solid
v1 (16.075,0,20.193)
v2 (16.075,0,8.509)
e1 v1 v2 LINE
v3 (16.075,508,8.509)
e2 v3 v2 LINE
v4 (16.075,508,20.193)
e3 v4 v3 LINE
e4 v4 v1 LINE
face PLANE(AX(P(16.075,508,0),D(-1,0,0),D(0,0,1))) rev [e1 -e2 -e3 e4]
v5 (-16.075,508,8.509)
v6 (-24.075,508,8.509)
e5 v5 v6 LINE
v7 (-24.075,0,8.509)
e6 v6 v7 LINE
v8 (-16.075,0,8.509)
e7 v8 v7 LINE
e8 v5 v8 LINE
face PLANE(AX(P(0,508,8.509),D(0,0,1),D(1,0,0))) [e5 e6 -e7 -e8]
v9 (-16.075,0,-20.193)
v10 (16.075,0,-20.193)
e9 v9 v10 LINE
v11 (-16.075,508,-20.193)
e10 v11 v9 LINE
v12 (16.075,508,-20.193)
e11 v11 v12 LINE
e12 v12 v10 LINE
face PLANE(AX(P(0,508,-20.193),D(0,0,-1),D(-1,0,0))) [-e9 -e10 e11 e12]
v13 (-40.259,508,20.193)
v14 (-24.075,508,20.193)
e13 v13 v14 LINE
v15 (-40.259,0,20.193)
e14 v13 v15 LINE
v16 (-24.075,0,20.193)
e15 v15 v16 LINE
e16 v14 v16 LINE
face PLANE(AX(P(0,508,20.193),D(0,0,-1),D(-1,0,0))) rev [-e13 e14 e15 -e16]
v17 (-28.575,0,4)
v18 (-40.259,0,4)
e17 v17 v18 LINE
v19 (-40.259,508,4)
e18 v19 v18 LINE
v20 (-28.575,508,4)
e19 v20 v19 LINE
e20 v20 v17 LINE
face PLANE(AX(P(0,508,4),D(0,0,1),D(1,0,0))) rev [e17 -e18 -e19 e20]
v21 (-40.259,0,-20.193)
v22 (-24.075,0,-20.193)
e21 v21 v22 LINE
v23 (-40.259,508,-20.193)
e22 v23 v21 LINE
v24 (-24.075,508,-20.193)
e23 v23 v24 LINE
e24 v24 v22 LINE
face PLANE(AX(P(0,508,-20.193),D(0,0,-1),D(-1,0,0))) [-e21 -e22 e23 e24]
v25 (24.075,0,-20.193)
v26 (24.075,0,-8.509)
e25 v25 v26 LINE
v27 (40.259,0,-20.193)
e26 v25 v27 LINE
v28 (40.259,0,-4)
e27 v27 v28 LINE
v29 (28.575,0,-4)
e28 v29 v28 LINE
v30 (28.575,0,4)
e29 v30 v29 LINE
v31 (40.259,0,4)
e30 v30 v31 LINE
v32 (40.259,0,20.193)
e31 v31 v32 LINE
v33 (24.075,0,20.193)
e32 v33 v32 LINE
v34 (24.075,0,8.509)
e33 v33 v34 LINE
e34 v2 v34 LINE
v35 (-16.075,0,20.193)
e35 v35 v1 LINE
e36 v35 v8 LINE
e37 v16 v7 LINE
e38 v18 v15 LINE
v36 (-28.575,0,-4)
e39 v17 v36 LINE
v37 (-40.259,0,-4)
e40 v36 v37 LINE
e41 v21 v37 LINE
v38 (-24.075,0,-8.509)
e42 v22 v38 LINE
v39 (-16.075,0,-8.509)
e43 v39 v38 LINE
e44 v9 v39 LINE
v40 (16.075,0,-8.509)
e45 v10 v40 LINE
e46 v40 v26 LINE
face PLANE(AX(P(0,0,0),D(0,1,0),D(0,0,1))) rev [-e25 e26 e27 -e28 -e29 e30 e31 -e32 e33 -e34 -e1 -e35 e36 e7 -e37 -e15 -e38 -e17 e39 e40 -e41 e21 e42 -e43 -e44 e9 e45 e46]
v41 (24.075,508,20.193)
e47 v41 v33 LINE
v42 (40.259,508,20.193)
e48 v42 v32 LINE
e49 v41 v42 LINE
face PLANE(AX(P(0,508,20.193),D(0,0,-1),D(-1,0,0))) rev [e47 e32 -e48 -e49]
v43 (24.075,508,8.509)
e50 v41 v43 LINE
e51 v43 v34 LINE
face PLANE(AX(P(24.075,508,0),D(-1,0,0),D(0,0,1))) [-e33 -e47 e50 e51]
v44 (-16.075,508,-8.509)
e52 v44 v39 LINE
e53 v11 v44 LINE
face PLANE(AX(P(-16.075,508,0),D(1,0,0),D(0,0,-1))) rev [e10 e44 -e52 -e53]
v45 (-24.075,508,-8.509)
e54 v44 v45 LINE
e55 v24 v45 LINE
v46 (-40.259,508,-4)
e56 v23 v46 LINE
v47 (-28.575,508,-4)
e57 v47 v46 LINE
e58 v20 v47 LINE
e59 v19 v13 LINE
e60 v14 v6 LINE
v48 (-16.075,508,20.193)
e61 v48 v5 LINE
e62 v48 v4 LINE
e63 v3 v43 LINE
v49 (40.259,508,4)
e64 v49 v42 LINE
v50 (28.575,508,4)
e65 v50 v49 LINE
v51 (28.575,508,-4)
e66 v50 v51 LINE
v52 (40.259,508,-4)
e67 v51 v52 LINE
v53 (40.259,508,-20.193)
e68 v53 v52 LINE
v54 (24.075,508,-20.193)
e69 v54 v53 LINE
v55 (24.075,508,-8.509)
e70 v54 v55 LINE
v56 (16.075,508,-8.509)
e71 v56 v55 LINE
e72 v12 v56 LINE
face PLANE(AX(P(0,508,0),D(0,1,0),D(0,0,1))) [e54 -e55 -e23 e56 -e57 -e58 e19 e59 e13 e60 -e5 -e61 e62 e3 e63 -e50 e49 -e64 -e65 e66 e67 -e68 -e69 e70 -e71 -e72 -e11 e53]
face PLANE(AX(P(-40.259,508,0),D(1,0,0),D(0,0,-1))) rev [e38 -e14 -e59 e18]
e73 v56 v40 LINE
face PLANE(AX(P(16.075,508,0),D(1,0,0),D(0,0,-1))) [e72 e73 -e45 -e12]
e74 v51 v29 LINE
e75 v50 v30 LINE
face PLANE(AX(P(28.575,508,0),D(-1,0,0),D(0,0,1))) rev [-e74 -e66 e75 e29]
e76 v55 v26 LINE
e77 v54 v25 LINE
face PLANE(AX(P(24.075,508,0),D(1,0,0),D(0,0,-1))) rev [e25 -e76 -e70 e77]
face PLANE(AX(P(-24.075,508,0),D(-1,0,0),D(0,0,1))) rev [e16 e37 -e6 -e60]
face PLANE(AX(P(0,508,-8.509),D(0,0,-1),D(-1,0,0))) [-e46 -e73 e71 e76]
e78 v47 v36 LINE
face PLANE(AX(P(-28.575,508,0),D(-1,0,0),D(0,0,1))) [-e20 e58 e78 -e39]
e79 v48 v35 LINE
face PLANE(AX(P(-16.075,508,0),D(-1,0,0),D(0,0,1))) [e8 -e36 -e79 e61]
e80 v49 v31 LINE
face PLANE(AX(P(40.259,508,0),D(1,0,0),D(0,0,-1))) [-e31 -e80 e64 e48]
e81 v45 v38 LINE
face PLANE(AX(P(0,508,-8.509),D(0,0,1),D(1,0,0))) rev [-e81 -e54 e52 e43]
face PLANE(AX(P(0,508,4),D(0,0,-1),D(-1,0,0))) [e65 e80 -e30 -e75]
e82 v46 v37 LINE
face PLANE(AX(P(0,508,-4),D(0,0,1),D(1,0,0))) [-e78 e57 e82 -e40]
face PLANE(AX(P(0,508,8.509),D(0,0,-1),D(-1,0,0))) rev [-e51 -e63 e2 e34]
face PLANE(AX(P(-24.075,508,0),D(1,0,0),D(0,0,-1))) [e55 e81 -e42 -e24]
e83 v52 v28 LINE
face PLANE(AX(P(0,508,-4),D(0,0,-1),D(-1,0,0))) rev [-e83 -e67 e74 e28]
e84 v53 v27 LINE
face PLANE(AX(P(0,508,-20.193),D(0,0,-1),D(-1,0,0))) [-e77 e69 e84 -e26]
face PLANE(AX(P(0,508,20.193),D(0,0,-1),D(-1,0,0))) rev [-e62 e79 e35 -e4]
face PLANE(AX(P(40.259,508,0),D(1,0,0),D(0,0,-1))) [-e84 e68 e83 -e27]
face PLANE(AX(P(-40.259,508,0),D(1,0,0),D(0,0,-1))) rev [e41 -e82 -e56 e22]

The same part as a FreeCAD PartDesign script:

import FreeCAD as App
import Part
import Sketcher
from FreeCAD import Vector
Q = App.Units.Quantity

doc = App.newDocument("Part")
body = doc.addObject("PartDesign::Body", "Body")

sketch1 = body.newObject("Sketcher::SketchObject", "Sketch")
sketch1.AttachmentSupport = (doc.getObject("XZ_Plane"), [""])
sketch1.MapMode = "FlatFace"
sketch1.addGeometry([
    Part.LineSegment(Vector(-24, -20, 0), Vector(-40, -20, 0)),
    Part.LineSegment(Vector(-40, -20, 0), Vector(-40, -4, 0)),
    Part.LineSegment(Vector(-40, -4, 0), Vector(-29, -4, 0)),
    Part.LineSegment(Vector(-29, -4, 0), Vector(-29, 4, 0)),
    Part.LineSegment(Vector(-29, 4, 0), Vector(-40, 4, 0)),
    Part.LineSegment(Vector(-40, 4, 0), Vector(-40, 20, 0)),
    Part.LineSegment(Vector(-40, 20, 0), Vector(-24, 20, 0)),
    Part.LineSegment(Vector(-24, 20, 0), Vector(-24, 9, 0)),
    Part.LineSegment(Vector(-24, 9, 0), Vector(-16, 9, 0)),
    Part.LineSegment(Vector(-16, 9, 0), Vector(-16, 20, 0)),
    Part.LineSegment(Vector(-16, 20, 0), Vector(16, 20, 0)),
    Part.LineSegment(Vector(16, 20, 0), Vector(16, 9, 0)),
    Part.LineSegment(Vector(16, 9, 0), Vector(24, 9, 0)),
    Part.LineSegment(Vector(24, 9, 0), Vector(24, 20, 0)),
    Part.LineSegment(Vector(24, 20, 0), Vector(40, 20, 0)),
    Part.LineSegment(Vector(40, 20, 0), Vector(40, 4, 0)),
    Part.LineSegment(Vector(40, 4, 0), Vector(29, 4, 0)),
    Part.LineSegment(Vector(29, 4, 0), Vector(29, -4, 0)),
    Part.LineSegment(Vector(29, -4, 0), Vector(40, -4, 0)),
    Part.LineSegment(Vector(40, -4, 0), Vector(40, -20, 0)),
    Part.LineSegment(Vector(40, -20, 0), Vector(24, -20, 0)),
    Part.LineSegment(Vector(24, -20, 0), Vector(24, -9, 0)),
    Part.LineSegment(Vector(24, -9, 0), Vector(16, -9, 0)),
    Part.LineSegment(Vector(16, -9, 0), Vector(16, -20, 0)),
    Part.LineSegment(Vector(16, -20, 0), Vector(-16, -20, 0)),
    Part.LineSegment(Vector(-16, -20, 0), Vector(-16, -9, 0)),
    Part.LineSegment(Vector(-16, -9, 0), Vector(-24, -9, 0)),
    Part.LineSegment(Vector(-24, -9, 0), Vector(-24, -20, 0)),
], False)
sketch1.addConstraint([
    Sketcher.Constraint("Coincident", 0, 2, 1, 1),
    Sketcher.Constraint("Coincident", 1, 2, 2, 1),
    Sketcher.Constraint("Coincident", 2, 2, 3, 1),
    Sketcher.Constraint("Coincident", 3, 2, 4, 1),
    Sketcher.Constraint("Coincident", 4, 2, 5, 1),
    Sketcher.Constraint("Coincident", 5, 2, 6, 1),
    Sketcher.Constraint("Coincident", 6, 2, 7, 1),
    Sketcher.Constraint("Coincident", 7, 2, 8, 1),
    Sketcher.Constraint("Coincident", 8, 2, 9, 1),
    Sketcher.Constraint("Coincident", 9, 2, 10, 1),
    Sketcher.Constraint("Coincident", 10, 2, 11, 1),
    Sketcher.Constraint("Coincident", 11, 2, 12, 1),
    Sketcher.Constraint("Coincident", 12, 2, 13, 1),
    Sketcher.Constraint("Coincident", 13, 2, 14, 1),
    Sketcher.Constraint("Coincident", 14, 2, 15, 1),
    Sketcher.Constraint("Coincident", 15, 2, 16, 1),
    Sketcher.Constraint("Coincident", 16, 2, 17, 1),
    Sketcher.Constraint("Coincident", 17, 2, 18, 1),
    Sketcher.Constraint("Coincident", 18, 2, 19, 1),
    Sketcher.Constraint("Coincident", 19, 2, 20, 1),
    Sketcher.Constraint("Coincident", 20, 2, 21, 1),
    Sketcher.Constraint("Coincident", 21, 2, 22, 1),
    Sketcher.Constraint("Coincident", 22, 2, 23, 1),
    Sketcher.Constraint("Coincident", 23, 2, 24, 1),
    Sketcher.Constraint("Coincident", 24, 2, 25, 1),
    Sketcher.Constraint("Coincident", 25, 2, 26, 1),
    Sketcher.Constraint("Coincident", 26, 2, 27, 1),
    Sketcher.Constraint("Coincident", 27, 2, 0, 1),
    Sketcher.Constraint("Horizontal", 0),
    Sketcher.Constraint("Vertical", 1),
    Sketcher.Constraint("Horizontal", 2),
    Sketcher.Constraint("Vertical", 3),
    Sketcher.Constraint("Horizontal", 4),
    Sketcher.Constraint("Vertical", 5),
    Sketcher.Constraint("Horizontal", 6),
    Sketcher.Constraint("Vertical", 7),
    Sketcher.Constraint("Horizontal", 8),
    Sketcher.Constraint("Vertical", 9),
    Sketcher.Constraint("Horizontal", 10),
    Sketcher.Constraint("Vertical", 11),
    Sketcher.Constraint("Horizontal", 12),
    Sketcher.Constraint("Vertical", 13),
    Sketcher.Constraint("Horizontal", 14),
    Sketcher.Constraint("Vertical", 15),
    Sketcher.Constraint("Horizontal", 16),
    Sketcher.Constraint("Vertical", 17),
    Sketcher.Constraint("Horizontal", 18),
    Sketcher.Constraint("Vertical", 19),
    Sketcher.Constraint("Horizontal", 20),
    Sketcher.Constraint("Vertical", 21),
    Sketcher.Constraint("Horizontal", 22),
    Sketcher.Constraint("Vertical", 23),
    Sketcher.Constraint("Horizontal", 24),
    Sketcher.Constraint("Vertical", 25),
    Sketcher.Constraint("Horizontal", 26),
    Sketcher.Constraint("Vertical", 27),
    Sketcher.Constraint("Symmetric", 0, 2, 14, 2, -1, 1),
    Sketcher.Constraint("Symmetric", 2, 2, 16, 2, -1, 1),
    Sketcher.Constraint("Symmetric", 4, 2, 18, 2, -1, 1),
    Sketcher.Constraint("Symmetric", 6, 2, 20, 2, -1, 1),
    Sketcher.Constraint("Symmetric", 8, 2, 22, 2, -1, 1),
    Sketcher.Constraint("Symmetric", 10, 2, 24, 2, -1, 1),
    Sketcher.Constraint("Symmetric", 12, 2, 26, 2, -1, 1),
    Sketcher.Constraint("Symmetric", 8, 2, 11, 2, -2),
    Sketcher.Constraint("Symmetric", 6, 2, 13, 2, -2),
    Sketcher.Constraint("Symmetric", 4, 2, 15, 2, -2),
    Sketcher.Constraint("Horizontal", 6, 2, 9, 2),
    Sketcher.Constraint("Equal", 26, 3),
    Sketcher.Constraint("Equal", 18, 7),
    Sketcher.Constraint("DistanceX", 2, 1, 2, 2, Q("0.46 in")),
    Sketcher.Constraint("DistanceY", 0, 2, 5, 2, Q("1.59 in")),
    Sketcher.Constraint("DistanceX", 0, 2, -1, 1, Q("1.585 in")),
    Sketcher.Constraint("DistanceX", 0, 2, 0, 1, Q("16.184 mm")),
    Sketcher.Constraint("DistanceX", 8, 1, 8, 2, Q("8 mm")),
])
pad1 = body.newObject("PartDesign::Pad", "Pad")
pad1.Profile = sketch1
pad1.Length = Q("20 in")
pad1.Reversed = True

doc.recompute()
